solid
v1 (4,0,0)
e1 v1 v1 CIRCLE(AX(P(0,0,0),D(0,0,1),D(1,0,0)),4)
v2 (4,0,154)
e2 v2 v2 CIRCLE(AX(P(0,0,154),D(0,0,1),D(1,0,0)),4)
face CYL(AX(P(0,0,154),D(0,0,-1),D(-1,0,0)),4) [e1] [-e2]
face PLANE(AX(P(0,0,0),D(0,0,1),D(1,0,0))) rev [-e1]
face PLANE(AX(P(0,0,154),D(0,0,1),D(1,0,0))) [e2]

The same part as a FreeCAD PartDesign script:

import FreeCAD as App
import Part
import Sketcher

doc = App.newDocument("Part")
body = doc.addObject("PartDesign::Body", "Body")

# Sketch on XY plane
sketch1 = body.newObject("Sketcher::SketchObject", "Sketch")
sketch1.AttachmentSupport = (doc.getObject("XY_Plane"), [""])
sketch1.MapMode = "FlatFace"
sketch1.addGeometry(Part.Circle(App.Vector(0, 0, 0), App.Vector(0, 0, 1), 4), False)
sketch1.addConstraint([
    Sketcher.Constraint("Coincident", 0, 3, -1, 1),
    Sketcher.Constraint("Diameter", 0, 8.0),
])
pad1 = body.newObject("PartDesign::Pad", "Pad")
pad1.Profile = sketch1
pad1.Length = 154

doc.recompute()
